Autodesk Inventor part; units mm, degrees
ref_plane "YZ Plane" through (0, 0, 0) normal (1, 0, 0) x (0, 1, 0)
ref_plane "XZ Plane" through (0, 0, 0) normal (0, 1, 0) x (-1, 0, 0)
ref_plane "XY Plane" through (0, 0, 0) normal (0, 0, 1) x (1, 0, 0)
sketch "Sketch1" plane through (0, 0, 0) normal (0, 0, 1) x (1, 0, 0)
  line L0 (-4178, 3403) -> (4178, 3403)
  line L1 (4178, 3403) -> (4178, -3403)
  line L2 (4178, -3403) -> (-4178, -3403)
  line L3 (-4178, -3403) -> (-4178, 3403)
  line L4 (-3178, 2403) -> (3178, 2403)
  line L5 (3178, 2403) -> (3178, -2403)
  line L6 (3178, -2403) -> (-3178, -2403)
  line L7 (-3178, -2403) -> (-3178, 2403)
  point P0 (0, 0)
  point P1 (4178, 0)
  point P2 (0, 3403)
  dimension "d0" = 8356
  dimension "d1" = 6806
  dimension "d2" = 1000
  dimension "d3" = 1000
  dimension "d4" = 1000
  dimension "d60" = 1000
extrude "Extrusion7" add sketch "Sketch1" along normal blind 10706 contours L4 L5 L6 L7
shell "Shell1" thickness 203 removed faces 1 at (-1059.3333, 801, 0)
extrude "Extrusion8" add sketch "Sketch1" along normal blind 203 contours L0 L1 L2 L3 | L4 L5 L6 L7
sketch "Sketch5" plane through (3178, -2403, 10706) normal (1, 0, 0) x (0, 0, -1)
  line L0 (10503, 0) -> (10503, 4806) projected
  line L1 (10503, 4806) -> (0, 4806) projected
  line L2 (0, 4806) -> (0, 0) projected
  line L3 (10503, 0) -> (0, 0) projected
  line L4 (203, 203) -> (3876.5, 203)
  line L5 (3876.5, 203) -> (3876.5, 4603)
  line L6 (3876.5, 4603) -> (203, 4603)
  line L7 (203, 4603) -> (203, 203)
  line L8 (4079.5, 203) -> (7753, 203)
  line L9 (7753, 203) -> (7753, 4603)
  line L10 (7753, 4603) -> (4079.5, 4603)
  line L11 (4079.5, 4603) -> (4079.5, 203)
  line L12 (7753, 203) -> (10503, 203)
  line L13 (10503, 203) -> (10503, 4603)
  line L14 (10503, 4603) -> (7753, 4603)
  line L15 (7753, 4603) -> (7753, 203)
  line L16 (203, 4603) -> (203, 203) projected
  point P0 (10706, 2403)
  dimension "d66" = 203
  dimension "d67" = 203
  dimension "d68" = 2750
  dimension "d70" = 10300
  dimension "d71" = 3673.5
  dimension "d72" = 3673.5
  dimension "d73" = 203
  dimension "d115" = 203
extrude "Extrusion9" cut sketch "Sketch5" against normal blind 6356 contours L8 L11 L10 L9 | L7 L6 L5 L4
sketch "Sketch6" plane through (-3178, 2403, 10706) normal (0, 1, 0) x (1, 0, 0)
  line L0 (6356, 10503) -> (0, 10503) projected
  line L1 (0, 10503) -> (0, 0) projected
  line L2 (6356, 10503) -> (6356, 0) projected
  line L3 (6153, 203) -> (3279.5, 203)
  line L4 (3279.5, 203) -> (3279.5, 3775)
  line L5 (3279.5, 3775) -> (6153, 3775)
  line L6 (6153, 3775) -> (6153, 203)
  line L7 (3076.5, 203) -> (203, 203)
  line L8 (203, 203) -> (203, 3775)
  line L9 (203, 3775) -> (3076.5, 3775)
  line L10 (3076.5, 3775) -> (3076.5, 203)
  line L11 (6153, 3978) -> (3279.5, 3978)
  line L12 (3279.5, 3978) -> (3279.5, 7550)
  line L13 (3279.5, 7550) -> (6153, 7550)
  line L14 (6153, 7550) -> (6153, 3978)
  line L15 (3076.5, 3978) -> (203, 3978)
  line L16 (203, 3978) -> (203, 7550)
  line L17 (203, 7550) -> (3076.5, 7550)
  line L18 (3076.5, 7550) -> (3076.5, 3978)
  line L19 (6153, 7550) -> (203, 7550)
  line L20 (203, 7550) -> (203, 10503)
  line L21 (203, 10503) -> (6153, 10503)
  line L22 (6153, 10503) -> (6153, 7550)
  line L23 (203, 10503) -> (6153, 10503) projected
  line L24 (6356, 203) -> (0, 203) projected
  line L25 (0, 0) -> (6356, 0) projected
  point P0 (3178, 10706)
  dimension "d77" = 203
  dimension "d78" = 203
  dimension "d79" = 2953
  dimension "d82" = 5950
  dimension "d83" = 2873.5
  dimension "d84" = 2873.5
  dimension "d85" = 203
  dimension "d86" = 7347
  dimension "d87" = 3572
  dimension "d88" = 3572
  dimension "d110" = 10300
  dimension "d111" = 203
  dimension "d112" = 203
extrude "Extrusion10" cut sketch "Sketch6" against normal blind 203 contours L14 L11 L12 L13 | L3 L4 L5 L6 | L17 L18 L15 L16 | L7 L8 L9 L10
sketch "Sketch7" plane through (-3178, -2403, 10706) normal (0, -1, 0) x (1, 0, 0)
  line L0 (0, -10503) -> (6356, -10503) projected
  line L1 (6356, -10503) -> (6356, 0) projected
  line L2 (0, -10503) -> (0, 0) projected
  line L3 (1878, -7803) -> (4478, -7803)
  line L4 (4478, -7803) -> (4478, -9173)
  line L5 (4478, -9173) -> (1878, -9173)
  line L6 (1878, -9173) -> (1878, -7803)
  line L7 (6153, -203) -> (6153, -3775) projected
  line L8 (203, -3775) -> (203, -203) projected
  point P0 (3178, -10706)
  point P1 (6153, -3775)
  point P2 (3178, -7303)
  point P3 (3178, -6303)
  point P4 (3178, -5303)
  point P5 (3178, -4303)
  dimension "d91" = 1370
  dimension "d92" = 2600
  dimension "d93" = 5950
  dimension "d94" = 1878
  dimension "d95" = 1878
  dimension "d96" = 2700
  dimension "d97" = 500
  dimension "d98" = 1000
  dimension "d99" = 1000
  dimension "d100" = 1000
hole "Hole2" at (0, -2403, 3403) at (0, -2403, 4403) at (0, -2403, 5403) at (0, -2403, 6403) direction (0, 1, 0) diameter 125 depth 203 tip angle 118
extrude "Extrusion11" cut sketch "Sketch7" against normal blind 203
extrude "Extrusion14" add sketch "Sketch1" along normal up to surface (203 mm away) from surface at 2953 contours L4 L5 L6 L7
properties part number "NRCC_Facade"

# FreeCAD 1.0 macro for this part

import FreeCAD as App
import Part
import Sketcher


def faces_at(feature, points):
    """Names of the faces that lie closest to the given points."""
    faces = feature.Shape.Faces
    near = lambda p: min(range(len(faces)), key=lambda i: faces[i].distToShape(Part.Vertex(*p))[0])
    return sorted({f"Face{near(p) + 1}" for p in points})

doc = App.newDocument("Part")
body = doc.addObject("PartDesign::Body", "Body")

sketch1 = body.newObject("Sketcher::SketchObject", "Sketch")
sketch1.AttachmentSupport = (doc.getObject("XY_Plane"), [""])
sketch1.MapMode = "FlatFace"
sketch1.addGeometry([
    Part.LineSegment(App.Vector(3178, 2403, 0), App.Vector(-3178, 2403, 0)),
    Part.LineSegment(App.Vector(-3178, 2403, 0), App.Vector(-3178, -2403, 0)),
    Part.LineSegment(App.Vector(-3178, -2403, 0), App.Vector(3178, -2403, 0)),
    Part.LineSegment(App.Vector(3178, -2403, 0), App.Vector(3178, 2403, 0)),
], False)
sketch1.addConstraint([
    Sketcher.Constraint("Coincident", 0, 2, 1, 1),
    Sketcher.Constraint("Coincident", 1, 2, 2, 1),
    Sketcher.Constraint("Coincident", 2, 2, 3, 1),
    Sketcher.Constraint("Coincident", 3, 2, 0, 1),
    Sketcher.Constraint("Horizontal", 0),
    Sketcher.Constraint("Vertical", 1),
    Sketcher.Constraint("Horizontal", 2),
    Sketcher.Constraint("Vertical", 3),
    Sketcher.Constraint("Symmetric", 0, 2, 2, 2, -1, 1),
    Sketcher.Constraint("DistanceX", 0, 2, 0, 1, 6356.0),
    Sketcher.Constraint("DistanceY", 1, 2, 1, 1, 4806.0),
])
pad1 = body.newObject("PartDesign::Pad", "Pad")
pad1.Profile = sketch1
pad1.Length = 10706
doc.recompute()

thickness = body.newObject("PartDesign::Thickness", "Thickness")
thickness.Base = (pad1, faces_at(pad1, [(-1059.333, 801, 0)]))
thickness.Value = 203
thickness.Reversed = True
thickness.Join = "Intersection"

sketch2 = body.newObject("Sketcher::SketchObject", "Sketch001")
sketch2.AttachmentSupport = (doc.getObject("XY_Plane"), [""])
sketch2.MapMode = "FlatFace"
sketch2.addGeometry([
    Part.LineSegment(App.Vector(4178, 3403, 0), App.Vector(-4178, 3403, 0)),
    Part.LineSegment(App.Vector(-4178, 3403, 0), App.Vector(-4178, -3403, 0)),
    Part.LineSegment(App.Vector(-4178, -3403, 0), App.Vector(4178, -3403, 0)),
    Part.LineSegment(App.Vector(4178, -3403, 0), App.Vector(4178, 3403, 0)),
], False)
sketch2.addConstraint([
    Sketcher.Constraint("Coincident", 0, 2, 1, 1),
    Sketcher.Constraint("Coincident", 1, 2, 2, 1),
    Sketcher.Constraint("Coincident", 2, 2, 3, 1),
    Sketcher.Constraint("Coincident", 3, 2, 0, 1),
    Sketcher.Constraint("Horizontal", 0),
    Sketcher.Constraint("Vertical", 1),
    Sketcher.Constraint("Horizontal", 2),
    Sketcher.Constraint("Vertical", 3),
    Sketcher.Constraint("Symmetric", 0, 2, 2, 2, -1, 1),
    Sketcher.Constraint("DistanceX", 0, 2, 0, 1, 8356.0),
    Sketcher.Constraint("DistanceY", 1, 2, 1, 1, 6806.0),
])
pad2 = body.newObject("PartDesign::Pad", "Pad001")
pad2.Profile = sketch2
pad2.Length = 203

sketch3 = body.newObject("Sketcher::SketchObject", "Sketch002")
sketch3.AttachmentSupport = (doc.getObject("YZ_Plane"), [""])
sketch3.MapMode = "FlatFace"
sketch3.AttachmentOffset = App.Placement(App.Vector(0, 0, 3178), App.Rotation())
sketch3.addGeometry([
    Part.LineSegment(App.Vector(-2200, 6626, 0), App.Vector(-2200, 2953, 0)),
    Part.LineSegment(App.Vector(-2200, 2953, 0), App.Vector(2200, 2953, 0)),
    Part.LineSegment(App.Vector(2200, 2953, 0), App.Vector(2200, 6626, 0)),
    Part.LineSegment(App.Vector(2200, 6626, 0), App.Vector(-2200, 6626, 0)),
    Part.LineSegment(App.Vector(2200, 10503, 0), App.Vector(-2200, 10503, 0)),
    Part.LineSegment(App.Vector(-2200, 10503, 0), App.Vector(-2200, 6830, 0)),
    Part.LineSegment(App.Vector(-2200, 6830, 0), App.Vector(2200, 6830, 0)),
    Part.LineSegment(App.Vector(2200, 6830, 0), App.Vector(2200, 10503, 0)),
], False)
sketch3.addConstraint([
    Sketcher.Constraint("Coincident", 0, 2, 1, 1),
    Sketcher.Constraint("Coincident", 1, 2, 2, 1),
    Sketcher.Constraint("Coincident", 2, 2, 3, 1),
    Sketcher.Constraint("Coincident", 3, 2, 0, 1),
    Sketcher.Constraint("Coincident", 4, 2, 5, 1),
    Sketcher.Constraint("Coincident", 5, 2, 6, 1),
    Sketcher.Constraint("Coincident", 6, 2, 7, 1),
    Sketcher.Constraint("Coincident", 7, 2, 4, 1),
    Sketcher.Constraint("Vertical", 0),
    Sketcher.Constraint("Horizontal", 1),
    Sketcher.Constraint("Vertical", 2),
    Sketcher.Constraint("Horizontal", 3),
    Sketcher.Constraint("Horizontal", 4),
    Sketcher.Constraint("Vertical", 5),
    Sketcher.Constraint("Horizontal", 6),
    Sketcher.Constraint("Vertical", 7),
    Sketcher.Constraint("Vertical", 3, 2, 4, 2),
    Sketcher.Constraint("Vertical", 2, 2, 6, 2),
    Sketcher.Constraint("Equal", 2, 5),
    Sketcher.Constraint("DistanceY", 0, 2, 0, 1, 3673.5),
    Sketcher.Constraint("DistanceY", 3, 2, 5, 2, 203.0),
    Sketcher.Constraint("DistanceX", 1, 1, 1, 2, 4400.0),
    Sketcher.Constraint("DistanceX", 0, 2, -1, 1, 2200.0),
    Sketcher.Constraint("DistanceY", -1, 1, 0, 2, 2953.0),
])
pocket1 = body.newObject("PartDesign::Pocket", "Pocket")
pocket1.Profile = sketch3
pocket1.Length = 6356

sketch4 = body.newObject("Sketcher::SketchObject", "Sketch003")
sketch4.AttachmentSupport = (doc.getObject("XZ_Plane"), [""])
sketch4.MapMode = "FlatFace"
sketch4.AttachmentOffset = App.Placement(App.Vector(0, 0, -2403), App.Rotation())
sketch4.addGeometry([
    Part.LineSegment(App.Vector(2975, 6728, 0), App.Vector(2975, 3156, 0)),
    Part.LineSegment(App.Vector(2975, 3156, 0), App.Vector(102, 3156, 0)),
    Part.LineSegment(App.Vector(102, 3156, 0), App.Vector(102, 6728, 0)),
    Part.LineSegment(App.Vector(102, 6728, 0), App.Vector(2975, 6728, 0)),
    Part.LineSegment(App.Vector(102, 10503, 0), App.Vector(2975, 10503, 0)),
    Part.LineSegment(App.Vector(2975, 10503, 0), App.Vector(2975, 6931, 0)),
    Part.LineSegment(App.Vector(2975, 6931, 0), App.Vector(102, 6931, 0)),
    Part.LineSegment(App.Vector(102, 6931, 0), App.Vector(102, 10503, 0)),
    Part.LineSegment(App.Vector(-102, 3156, 0), App.Vector(-2975, 3156, 0)),
    Part.LineSegment(App.Vector(-2975, 3156, 0), App.Vector(-2975, 6728, 0)),
    Part.LineSegment(App.Vector(-2975, 6728, 0), App.Vector(-102, 6728, 0)),
    Part.LineSegment(App.Vector(-102, 6728, 0), App.Vector(-102, 3156, 0)),
    Part.LineSegment(App.Vector(-2975, 10503, 0), App.Vector(-102, 10503, 0)),
    Part.LineSegment(App.Vector(-102, 10503, 0), App.Vector(-102, 6931, 0)),
    Part.LineSegment(App.Vector(-102, 6931, 0), App.Vector(-2975, 6931, 0)),
    Part.LineSegment(App.Vector(-2975, 6931, 0), App.Vector(-2975, 10503, 0)),
], False)
sketch4.addConstraint([
    Sketcher.Constraint("Coincident", 0, 2, 1, 1),
    Sketcher.Constraint("Coincident", 1, 2, 2, 1),
    Sketcher.Constraint("Coincident", 2, 2, 3, 1),
    Sketcher.Constraint("Coincident", 3, 2, 0, 1),
    Sketcher.Constraint("Coincident", 4, 2, 5, 1),
    Sketcher.Constraint("Coincident", 5, 2, 6, 1),
    Sketcher.Constraint("Coincident", 6, 2, 7, 1),
    Sketcher.Constraint("Coincident", 7, 2, 4, 1),
    Sketcher.Constraint("Coincident", 8, 2, 9, 1),
    Sketcher.Constraint("Coincident", 9, 2, 10, 1),
    Sketcher.Constraint("Coincident", 10, 2, 11, 1),
    Sketcher.Constraint("Coincident", 11, 2, 8, 1),
    Sketcher.Constraint("Coincident", 12, 2, 13, 1),
    Sketcher.Constraint("Coincident", 13, 2, 14, 1),
    Sketcher.Constraint("Coincident", 14, 2, 15, 1),
    Sketcher.Constraint("Coincident", 15, 2, 12, 1),
    Sketcher.Constraint("Vertical", 0),
    Sketcher.Constraint("Horizontal", 1),
    Sketcher.Constraint("Vertical", 2),
    Sketcher.Constraint("Horizontal", 3),
    Sketcher.Constraint("Horizontal", 4),
    Sketcher.Constraint("Vertical", 5),
    Sketcher.Constraint("Horizontal", 6),
    Sketcher.Constraint("Vertical", 7),
    Sketcher.Constraint("Horizontal", 8),
    Sketcher.Constraint("Vertical", 9),
    Sketcher.Constraint("Horizontal", 10),
    Sketcher.Constraint("Vertical", 11),
    Sketcher.Constraint("Horizontal", 12),
    Sketcher.Constraint("Vertical", 13),
    Sketcher.Constraint("Horizontal", 14),
    Sketcher.Constraint("Vertical", 15),
    Sketcher.Constraint("Symmetric", 0, 2, 8, 2, -2),
    Sketcher.Constraint("Symmetric", 2, 2, 10, 2, -2),
    Sketcher.Constraint("Symmetric", 7, 2, 12, 2, -2),
    Sketcher.Constraint("Symmetric", 5, 2, 14, 2, -2),
    Sketcher.Constraint("Vertical", 3, 2, 4, 2),
    Sketcher.Constraint("Vertical", 2, 2, 6, 2),
    Sketcher.Constraint("Equal", 2, 5),
    Sketcher.Constraint("DistanceY", 0, 2, 0, 1, 3572.0),
    Sketcher.Constraint("DistanceX", 1, 2, 1, 1, 2873.5),
    Sketcher.Constraint("DistanceY", 0, 2, 4, 2, 7347.0),
    Sketcher.Constraint("DistanceX", 8, 2, 0, 2, 5950.0),
    Sketcher.Constraint("DistanceY", -1, 1, 0, 2, 3156.0),
])
pocket2 = body.newObject("PartDesign::Pocket", "Pocket001")
pocket2.Profile = sketch4
pocket2.Length = 203
pocket2.Reversed = True

sketch5 = body.newObject("Sketcher::SketchObject", "Sketch004")
sketch5.AttachmentSupport = (doc.getObject("XZ_Plane"), [""])
sketch5.MapMode = "FlatFace"
sketch5.AttachmentOffset = App.Placement(App.Vector(0, 0, 2403), App.Rotation())
sketch5.addGeometry([
    Part.Circle(App.Vector(0, 3403, 0), App.Vector(0, 0, 1), 62),
    Part.Circle(App.Vector(0, 4403, 0), App.Vector(0, 0, 1), 62),
    Part.Circle(App.Vector(0, 5403, 0), App.Vector(0, 0, 1), 62),
    Part.Circle(App.Vector(0, 6403, 0), App.Vector(0, 0, 1), 62),
], False)
sketch5.addConstraint([
    Sketcher.Constraint("Equal", 0, 1),
    Sketcher.Constraint("Equal", 1, 2),
    Sketcher.Constraint("Equal", 2, 3),
    Sketcher.Constraint("PointOnObject", 0, 3, -2),
    Sketcher.Constraint("PointOnObject", 1, 3, -2),
    Sketcher.Constraint("PointOnObject", 2, 3, -2),
    Sketcher.Constraint("PointOnObject", 3, 3, -2),
    Sketcher.Constraint("Diameter", 0, 125.0),
    Sketcher.Constraint("DistanceY", -1, 1, 0, 3, 3403.0),
    Sketcher.Constraint("DistanceY", -1, 1, 1, 3, 4403.0),
    Sketcher.Constraint("DistanceY", -1, 1, 2, 3, 5403.0),
    Sketcher.Constraint("DistanceY", -1, 1, 3, 3, 6403.0),
])
doc.recompute()
hole = body.newObject("PartDesign::Hole", "Hole")
hole.Profile = sketch5
hole.ThreadType = "None"
hole.Diameter = 125
hole.DepthType = "Dimension"
hole.Depth = 203
hole.DrillPoint = "Angled"
hole.DrillPointAngle = 118

sketch6 = body.newObject("Sketcher::SketchObject", "Sketch005")
sketch6.AttachmentSupport = (doc.getObject("XZ_Plane"), [""])
sketch6.MapMode = "FlatFace"
sketch6.AttachmentOffset = App.Placement(App.Vector(0, 0, 2403), App.Rotation())
sketch6.addGeometry([
    Part.LineSegment(App.Vector(1300, 2903, 0), App.Vector(-1300, 2903, 0)),
    Part.LineSegment(App.Vector(-1300, 2903, 0), App.Vector(-1300, 1533, 0)),
    Part.LineSegment(App.Vector(-1300, 1533, 0), App.Vector(1300, 1533, 0)),
    Part.LineSegment(App.Vector(1300, 1533, 0), App.Vector(1300, 2903, 0)),
], False)
sketch6.addConstraint([
    Sketcher.Constraint("Coincident", 0, 2, 1, 1),
    Sketcher.Constraint("Coincident", 1, 2, 2, 1),
    Sketcher.Constraint("Coincident", 2, 2, 3, 1),
    Sketcher.Constraint("Coincident", 3, 2, 0, 1),
    Sketcher.Constraint("Horizontal", 0),
    Sketcher.Constraint("Vertical", 1),
    Sketcher.Constraint("Horizontal", 2),
    Sketcher.Constraint("Vertical", 3),
    Sketcher.Constraint("DistanceX", 0, 2, 0, 1, 2600.0),
    Sketcher.Constraint("DistanceY", 1, 2, 1, 1, 1370.0),
    Sketcher.Constraint("DistanceX", 0, 2, -1, 1, 1300.0),
    Sketcher.Constraint("DistanceY", -1, 1, 0, 2, 2903.0),
])
pocket3 = body.newObject("PartDesign::Pocket", "Pocket002")
pocket3.Profile = sketch6
pocket3.Length = 203

sketch7 = body.newObject("Sketcher::SketchObject", "Sketch006")
sketch7.AttachmentSupport = (doc.getObject("XY_Plane"), [""])
sketch7.MapMode = "FlatFace"
sketch7.AttachmentOffset = App.Placement(App.Vector(0, 0, 2953), App.Rotation())
sketch7.addGeometry([
    Part.LineSegment(App.Vector(3178, 2403, 0), App.Vector(-3178, 2403, 0)),
    Part.LineSegment(App.Vector(-3178, 2403, 0), App.Vector(-3178, -2403, 0)),
    Part.LineSegment(App.Vector(-3178, -2403, 0), App.Vector(3178, -2403, 0)),
    Part.LineSegment(App.Vector(3178, -2403, 0), App.Vector(3178, 2403, 0)),
], False)
sketch7.addConstraint([
    Sketcher.Constraint("Coincident", 0, 2, 1, 1),
    Sketcher.Constraint("Coincident", 1, 2, 2, 1),
    Sketcher.Constraint("Coincident", 2, 2, 3, 1),
    Sketcher.Constraint("Coincident", 3, 2, 0, 1),
    Sketcher.Constraint("Horizontal", 0),
    Sketcher.Constraint("Vertical", 1),
    Sketcher.Constraint("Horizontal", 2),
    Sketcher.Constraint("Vertical", 3),
    Sketcher.Constraint("Symmetric", 0, 2, 2, 2, -1, 1),
    Sketcher.Constraint("DistanceX", 0, 2, 0, 1, 6356.0),
    Sketcher.Constraint("DistanceY", 1, 2, 1, 1, 4806.0),
])
pad3 = body.newObject("PartDesign::Pad", "Pad002")
pad3.Profile = sketch7
pad3.Length = 203

doc.recompute()
